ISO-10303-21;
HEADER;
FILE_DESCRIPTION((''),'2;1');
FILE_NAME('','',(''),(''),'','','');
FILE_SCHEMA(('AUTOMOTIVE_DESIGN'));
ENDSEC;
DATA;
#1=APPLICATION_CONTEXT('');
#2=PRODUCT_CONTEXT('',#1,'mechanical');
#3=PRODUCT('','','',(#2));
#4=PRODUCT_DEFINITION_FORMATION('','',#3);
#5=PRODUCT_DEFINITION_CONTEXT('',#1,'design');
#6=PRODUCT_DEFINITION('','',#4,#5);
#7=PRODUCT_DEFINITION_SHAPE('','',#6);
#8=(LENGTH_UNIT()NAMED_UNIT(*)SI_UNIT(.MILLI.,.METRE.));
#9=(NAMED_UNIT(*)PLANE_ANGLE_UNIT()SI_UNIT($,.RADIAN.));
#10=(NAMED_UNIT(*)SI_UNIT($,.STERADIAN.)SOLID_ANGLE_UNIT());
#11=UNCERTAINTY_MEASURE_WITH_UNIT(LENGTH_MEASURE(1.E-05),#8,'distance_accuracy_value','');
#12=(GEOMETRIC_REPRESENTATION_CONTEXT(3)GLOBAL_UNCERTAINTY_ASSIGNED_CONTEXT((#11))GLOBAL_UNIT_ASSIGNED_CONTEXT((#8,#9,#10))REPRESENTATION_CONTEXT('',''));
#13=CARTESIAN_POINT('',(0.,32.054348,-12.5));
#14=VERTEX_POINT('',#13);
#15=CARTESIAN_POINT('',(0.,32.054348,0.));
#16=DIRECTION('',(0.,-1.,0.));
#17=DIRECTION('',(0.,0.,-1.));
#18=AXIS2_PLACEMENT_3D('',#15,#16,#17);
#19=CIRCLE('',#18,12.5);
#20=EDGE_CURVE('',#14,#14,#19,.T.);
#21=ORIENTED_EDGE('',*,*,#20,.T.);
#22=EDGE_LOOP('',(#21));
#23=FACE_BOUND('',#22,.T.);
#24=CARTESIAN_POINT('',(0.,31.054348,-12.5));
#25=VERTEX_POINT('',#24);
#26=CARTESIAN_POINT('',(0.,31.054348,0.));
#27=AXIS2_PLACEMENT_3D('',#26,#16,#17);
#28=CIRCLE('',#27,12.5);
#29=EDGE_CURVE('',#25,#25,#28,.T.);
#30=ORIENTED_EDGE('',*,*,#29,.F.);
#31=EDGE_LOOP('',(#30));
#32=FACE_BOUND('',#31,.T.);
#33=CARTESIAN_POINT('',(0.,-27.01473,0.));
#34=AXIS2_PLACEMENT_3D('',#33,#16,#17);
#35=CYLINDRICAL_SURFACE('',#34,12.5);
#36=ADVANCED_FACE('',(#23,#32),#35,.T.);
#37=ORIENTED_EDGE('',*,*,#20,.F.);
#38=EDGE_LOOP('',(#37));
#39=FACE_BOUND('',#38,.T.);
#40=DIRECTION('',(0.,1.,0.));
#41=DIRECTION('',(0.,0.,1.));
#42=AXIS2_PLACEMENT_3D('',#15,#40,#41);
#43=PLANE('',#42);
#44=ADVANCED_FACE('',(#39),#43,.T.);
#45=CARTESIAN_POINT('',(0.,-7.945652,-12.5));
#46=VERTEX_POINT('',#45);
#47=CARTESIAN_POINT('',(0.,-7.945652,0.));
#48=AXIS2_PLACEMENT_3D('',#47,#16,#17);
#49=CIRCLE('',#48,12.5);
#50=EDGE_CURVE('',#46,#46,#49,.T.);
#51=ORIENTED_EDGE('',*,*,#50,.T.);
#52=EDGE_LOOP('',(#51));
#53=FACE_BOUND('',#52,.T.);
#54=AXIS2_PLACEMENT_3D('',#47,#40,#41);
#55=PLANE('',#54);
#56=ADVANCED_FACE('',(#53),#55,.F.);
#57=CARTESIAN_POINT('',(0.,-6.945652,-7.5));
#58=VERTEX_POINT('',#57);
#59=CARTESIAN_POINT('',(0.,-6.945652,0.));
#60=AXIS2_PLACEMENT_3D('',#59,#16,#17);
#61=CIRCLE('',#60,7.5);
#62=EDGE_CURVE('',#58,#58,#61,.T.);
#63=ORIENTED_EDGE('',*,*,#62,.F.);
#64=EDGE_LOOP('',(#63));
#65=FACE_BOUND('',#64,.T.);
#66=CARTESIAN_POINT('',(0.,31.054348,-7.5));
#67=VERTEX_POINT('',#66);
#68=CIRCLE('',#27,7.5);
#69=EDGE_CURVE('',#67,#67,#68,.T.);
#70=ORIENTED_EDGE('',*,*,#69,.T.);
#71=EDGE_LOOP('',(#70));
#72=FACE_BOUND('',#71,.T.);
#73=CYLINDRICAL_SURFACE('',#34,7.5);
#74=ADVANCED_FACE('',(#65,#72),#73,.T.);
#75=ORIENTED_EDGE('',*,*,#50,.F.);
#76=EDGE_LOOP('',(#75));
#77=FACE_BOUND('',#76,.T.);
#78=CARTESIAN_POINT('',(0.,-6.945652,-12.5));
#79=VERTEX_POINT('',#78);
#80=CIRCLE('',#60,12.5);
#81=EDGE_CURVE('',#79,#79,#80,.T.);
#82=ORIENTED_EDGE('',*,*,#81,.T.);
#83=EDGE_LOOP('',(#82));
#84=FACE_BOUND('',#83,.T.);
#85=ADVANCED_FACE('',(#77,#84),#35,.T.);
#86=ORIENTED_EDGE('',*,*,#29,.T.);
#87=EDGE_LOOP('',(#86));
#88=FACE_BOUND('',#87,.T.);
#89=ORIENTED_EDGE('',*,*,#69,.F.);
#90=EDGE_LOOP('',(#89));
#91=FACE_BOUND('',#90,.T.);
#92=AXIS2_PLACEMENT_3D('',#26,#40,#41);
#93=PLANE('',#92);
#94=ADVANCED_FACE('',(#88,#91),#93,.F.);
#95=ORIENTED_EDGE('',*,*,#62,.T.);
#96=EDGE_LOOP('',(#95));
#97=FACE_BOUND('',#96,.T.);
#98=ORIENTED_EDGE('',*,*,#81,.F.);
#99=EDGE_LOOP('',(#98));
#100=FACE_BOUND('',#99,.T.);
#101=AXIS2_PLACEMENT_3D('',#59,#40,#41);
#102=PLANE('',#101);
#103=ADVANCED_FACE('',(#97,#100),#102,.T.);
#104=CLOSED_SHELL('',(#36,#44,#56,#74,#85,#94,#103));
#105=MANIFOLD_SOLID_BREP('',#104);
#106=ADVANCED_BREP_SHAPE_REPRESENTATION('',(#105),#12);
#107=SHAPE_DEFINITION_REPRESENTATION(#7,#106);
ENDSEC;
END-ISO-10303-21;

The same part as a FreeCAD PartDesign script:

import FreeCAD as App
import Part
import Sketcher

V = App.Vector
Q = App.Units.Quantity

doc = App.newDocument("Part")
body = doc.addObject("PartDesign::Body", "Body")

# Sketch on XY plane
sketch1 = body.newObject("Sketcher::SketchObject", "Sketch")
sketch1.AttachmentSupport = (doc.getObject("XY_Plane"), [""])
sketch1.MapMode = "FlatFace"
sketch1.addGeometry([
    Part.LineSegment(V(0, -7.9, 0), V(0, 32.1, 0)),  # 0
    Part.LineSegment(V(0, 32.1, 0), V(-12.5, 32.1, 0)),  # 1
    Part.LineSegment(V(-12.5, 32.1, 0), V(-12.5, 31.1, 0)),  # 2
    Part.LineSegment(V(-12.5, 31.1, 0), V(-7.5, 31.1, 0)),  # 3
    Part.LineSegment(V(-7.5, 31.1, 0), V(-7.5, -6.9, 0)),  # 4
    Part.LineSegment(V(-7.5, -6.9, 0), V(-12.5, -6.9, 0)),  # 5
    Part.LineSegment(V(-12.5, -6.9, 0), V(-12.5, -7.9, 0)),  # 6
    Part.LineSegment(V(-12.5, -7.9, 0), V(0, -7.9, 0)),  # 7
], False)
sketch1.addConstraint([
    Sketcher.Constraint("Coincident", 0, 2, 1, 1),
    Sketcher.Constraint("Coincident", 1, 2, 2, 1),
    Sketcher.Constraint("Coincident", 2, 2, 3, 1),
    Sketcher.Constraint("Coincident", 3, 2, 4, 1),
    Sketcher.Constraint("Coincident", 4, 2, 5, 1),
    Sketcher.Constraint("Coincident", 5, 2, 6, 1),
    Sketcher.Constraint("Coincident", 6, 2, 7, 1),
    Sketcher.Constraint("Coincident", 7, 2, 0, 1),
    Sketcher.Constraint("Vertical", 0),
    Sketcher.Constraint("Horizontal", 1),
    Sketcher.Constraint("Vertical", 2),
    Sketcher.Constraint("Horizontal", 3),
    Sketcher.Constraint("Vertical", 4),
    Sketcher.Constraint("Horizontal", 5),
    Sketcher.Constraint("Vertical", 6),
    Sketcher.Constraint("Horizontal", 7),
    Sketcher.Constraint("PointOnObject", 0, 2, -2),
    Sketcher.Constraint("Vertical", 2, 2, 5, 2),
    Sketcher.Constraint("Equal", 2, 6),
    Sketcher.Constraint("DistanceX", 3, 1, 3, 2, Q("5 mm")),
    Sketcher.Constraint("DistanceY", 0, 1, 0, 2, Q("40 mm")),
    Sketcher.Constraint("DistanceY", 2, 2, 2, 1, Q("1 mm")),
    Sketcher.Constraint("DistanceX", 1, 2, 1, 1, Q("12.5 mm")),
    Sketcher.Constraint("DistanceY", -1, 1, 0, 2, Q("32.054348 mm")),
])
revolution = body.newObject("PartDesign::Revolution", "Revolution")
revolution.Profile = sketch1
revolution.ReferenceAxis = (sketch1, ["V_Axis"])
revolution.Angle = 360

doc.recompute()
